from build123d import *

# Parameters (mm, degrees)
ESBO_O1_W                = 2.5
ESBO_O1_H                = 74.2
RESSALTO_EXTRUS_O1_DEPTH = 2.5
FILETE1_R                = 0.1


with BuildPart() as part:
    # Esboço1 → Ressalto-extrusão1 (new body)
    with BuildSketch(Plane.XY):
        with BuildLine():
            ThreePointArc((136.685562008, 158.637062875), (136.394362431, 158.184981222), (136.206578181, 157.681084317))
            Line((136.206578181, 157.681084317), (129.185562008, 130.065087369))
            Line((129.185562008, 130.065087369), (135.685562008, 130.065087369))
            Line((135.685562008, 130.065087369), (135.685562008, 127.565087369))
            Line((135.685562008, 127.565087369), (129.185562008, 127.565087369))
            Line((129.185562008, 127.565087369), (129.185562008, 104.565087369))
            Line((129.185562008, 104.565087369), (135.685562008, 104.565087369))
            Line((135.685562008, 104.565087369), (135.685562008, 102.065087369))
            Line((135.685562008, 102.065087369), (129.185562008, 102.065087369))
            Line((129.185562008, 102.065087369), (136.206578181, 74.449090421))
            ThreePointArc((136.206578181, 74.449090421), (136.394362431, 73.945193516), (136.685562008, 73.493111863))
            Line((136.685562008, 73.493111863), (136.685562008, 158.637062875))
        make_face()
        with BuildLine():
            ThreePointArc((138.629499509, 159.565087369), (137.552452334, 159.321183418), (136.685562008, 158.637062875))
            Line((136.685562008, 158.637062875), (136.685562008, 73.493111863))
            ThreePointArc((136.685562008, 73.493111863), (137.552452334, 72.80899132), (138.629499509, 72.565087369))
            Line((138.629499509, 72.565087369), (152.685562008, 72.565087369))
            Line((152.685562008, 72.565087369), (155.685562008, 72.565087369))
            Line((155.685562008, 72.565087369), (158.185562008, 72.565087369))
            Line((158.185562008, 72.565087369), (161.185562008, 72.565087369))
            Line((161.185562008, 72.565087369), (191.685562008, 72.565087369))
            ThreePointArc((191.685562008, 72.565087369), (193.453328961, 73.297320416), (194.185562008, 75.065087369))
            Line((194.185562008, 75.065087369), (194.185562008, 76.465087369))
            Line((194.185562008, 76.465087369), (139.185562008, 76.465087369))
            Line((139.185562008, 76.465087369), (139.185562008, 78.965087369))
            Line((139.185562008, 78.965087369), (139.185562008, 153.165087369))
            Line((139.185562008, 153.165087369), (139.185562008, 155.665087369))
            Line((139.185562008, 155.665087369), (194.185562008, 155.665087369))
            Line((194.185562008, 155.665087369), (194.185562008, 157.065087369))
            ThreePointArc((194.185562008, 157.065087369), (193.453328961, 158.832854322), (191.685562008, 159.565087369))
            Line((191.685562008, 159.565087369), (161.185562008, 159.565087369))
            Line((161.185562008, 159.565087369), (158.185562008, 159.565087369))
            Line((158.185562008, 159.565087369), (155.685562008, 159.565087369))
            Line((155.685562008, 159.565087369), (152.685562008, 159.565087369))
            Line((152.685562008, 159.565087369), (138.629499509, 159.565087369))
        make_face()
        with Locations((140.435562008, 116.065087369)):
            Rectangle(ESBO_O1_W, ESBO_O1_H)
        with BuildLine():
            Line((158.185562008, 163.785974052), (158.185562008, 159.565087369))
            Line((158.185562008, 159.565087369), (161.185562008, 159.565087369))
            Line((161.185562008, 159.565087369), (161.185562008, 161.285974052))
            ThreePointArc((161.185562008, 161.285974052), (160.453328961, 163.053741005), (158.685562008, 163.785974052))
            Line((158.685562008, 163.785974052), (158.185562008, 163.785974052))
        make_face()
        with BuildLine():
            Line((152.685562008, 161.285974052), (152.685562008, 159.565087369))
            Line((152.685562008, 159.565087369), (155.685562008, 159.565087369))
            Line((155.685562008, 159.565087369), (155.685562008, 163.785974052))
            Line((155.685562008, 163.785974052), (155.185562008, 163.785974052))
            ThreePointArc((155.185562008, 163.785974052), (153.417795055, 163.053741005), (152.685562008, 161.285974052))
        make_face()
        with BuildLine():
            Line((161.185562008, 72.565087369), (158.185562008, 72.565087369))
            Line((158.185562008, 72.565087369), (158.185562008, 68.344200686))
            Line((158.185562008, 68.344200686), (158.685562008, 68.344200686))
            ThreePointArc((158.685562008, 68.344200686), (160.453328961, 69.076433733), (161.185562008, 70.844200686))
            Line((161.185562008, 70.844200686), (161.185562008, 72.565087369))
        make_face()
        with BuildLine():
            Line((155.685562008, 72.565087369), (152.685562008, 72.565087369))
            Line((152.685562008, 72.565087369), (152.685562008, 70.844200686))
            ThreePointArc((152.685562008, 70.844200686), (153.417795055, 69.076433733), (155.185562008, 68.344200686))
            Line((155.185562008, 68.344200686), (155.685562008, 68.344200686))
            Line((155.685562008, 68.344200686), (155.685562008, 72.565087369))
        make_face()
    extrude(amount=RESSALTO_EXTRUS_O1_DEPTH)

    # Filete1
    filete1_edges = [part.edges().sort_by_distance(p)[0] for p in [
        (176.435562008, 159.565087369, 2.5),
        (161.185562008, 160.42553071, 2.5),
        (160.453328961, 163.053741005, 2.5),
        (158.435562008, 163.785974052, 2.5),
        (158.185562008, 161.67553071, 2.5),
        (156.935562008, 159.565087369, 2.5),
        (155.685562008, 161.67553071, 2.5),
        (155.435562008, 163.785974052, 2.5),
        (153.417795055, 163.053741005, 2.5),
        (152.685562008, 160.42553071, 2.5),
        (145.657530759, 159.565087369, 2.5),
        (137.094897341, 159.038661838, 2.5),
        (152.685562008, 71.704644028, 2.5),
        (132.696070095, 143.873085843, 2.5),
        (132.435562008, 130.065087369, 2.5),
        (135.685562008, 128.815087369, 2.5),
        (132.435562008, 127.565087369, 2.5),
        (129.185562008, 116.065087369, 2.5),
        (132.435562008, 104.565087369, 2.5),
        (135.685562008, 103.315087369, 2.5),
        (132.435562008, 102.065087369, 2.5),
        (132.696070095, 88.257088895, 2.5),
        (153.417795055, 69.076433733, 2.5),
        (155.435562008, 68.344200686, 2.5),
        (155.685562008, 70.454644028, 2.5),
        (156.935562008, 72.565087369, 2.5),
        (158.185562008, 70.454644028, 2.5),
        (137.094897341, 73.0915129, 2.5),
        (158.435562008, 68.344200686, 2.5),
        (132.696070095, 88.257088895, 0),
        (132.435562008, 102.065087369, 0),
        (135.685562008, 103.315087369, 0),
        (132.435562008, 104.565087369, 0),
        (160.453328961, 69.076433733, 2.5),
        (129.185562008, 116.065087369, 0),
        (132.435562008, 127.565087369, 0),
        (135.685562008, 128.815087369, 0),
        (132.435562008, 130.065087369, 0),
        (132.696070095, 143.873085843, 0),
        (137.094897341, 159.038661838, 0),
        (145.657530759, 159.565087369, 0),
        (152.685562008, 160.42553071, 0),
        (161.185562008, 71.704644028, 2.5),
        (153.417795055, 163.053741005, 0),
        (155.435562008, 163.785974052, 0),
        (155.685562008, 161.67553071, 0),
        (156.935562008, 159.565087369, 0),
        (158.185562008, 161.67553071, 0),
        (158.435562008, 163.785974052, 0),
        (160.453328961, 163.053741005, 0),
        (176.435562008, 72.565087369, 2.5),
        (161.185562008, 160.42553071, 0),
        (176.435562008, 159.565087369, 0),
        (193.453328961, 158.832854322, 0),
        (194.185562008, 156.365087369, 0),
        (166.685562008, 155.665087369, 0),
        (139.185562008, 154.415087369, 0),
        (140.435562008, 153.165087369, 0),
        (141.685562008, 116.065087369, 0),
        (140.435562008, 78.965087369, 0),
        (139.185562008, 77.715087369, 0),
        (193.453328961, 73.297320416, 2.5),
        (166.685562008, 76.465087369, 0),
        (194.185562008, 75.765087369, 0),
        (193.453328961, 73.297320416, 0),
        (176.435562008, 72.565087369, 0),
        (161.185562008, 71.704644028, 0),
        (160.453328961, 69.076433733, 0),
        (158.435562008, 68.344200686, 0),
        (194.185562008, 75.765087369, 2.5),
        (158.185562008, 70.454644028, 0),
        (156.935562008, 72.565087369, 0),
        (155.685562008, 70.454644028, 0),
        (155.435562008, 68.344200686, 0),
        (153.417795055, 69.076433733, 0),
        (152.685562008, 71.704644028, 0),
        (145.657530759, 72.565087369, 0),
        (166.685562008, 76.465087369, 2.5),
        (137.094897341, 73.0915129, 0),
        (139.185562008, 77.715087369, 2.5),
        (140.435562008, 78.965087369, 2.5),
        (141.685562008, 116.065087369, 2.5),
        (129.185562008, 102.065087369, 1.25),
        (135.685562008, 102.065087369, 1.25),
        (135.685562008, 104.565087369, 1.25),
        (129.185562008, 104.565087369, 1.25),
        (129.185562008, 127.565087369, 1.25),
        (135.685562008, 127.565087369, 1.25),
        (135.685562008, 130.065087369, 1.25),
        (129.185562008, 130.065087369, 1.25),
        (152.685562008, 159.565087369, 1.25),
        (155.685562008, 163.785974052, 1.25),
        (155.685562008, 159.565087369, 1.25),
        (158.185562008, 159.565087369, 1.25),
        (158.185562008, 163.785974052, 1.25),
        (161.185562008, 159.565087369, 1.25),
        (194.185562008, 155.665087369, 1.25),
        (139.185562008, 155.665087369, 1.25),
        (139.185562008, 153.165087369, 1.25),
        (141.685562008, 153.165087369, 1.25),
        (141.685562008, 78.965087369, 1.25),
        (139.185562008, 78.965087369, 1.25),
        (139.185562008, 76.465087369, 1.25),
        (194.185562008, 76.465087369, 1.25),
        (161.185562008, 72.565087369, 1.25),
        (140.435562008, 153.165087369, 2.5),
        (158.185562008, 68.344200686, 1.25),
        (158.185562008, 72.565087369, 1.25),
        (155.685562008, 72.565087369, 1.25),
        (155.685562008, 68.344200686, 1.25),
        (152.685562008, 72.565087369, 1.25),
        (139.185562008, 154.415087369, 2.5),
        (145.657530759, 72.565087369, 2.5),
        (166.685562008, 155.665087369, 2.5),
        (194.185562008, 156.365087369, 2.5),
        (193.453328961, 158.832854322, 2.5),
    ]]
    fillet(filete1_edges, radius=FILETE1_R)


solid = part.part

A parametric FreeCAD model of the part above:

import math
import FreeCAD as App
import Part
import Sketcher
from FreeCAD import Vector
Q = App.Units.Quantity

doc = App.newDocument("Part")
body = doc.addObject("PartDesign::Body", "Body")

sketch1 = doc.addObject("Sketcher::SketchObject", "Sketch")
body.addObject(sketch1)
sketch1.AttachmentSupport = (doc.XY_Plane, [""])
sketch1.MapMode = "FlatFace"
sketch1.addGeometry([
    Part.ArcOfCircle(Part.Circle(Vector(138.6, 157.1, 0), Vector(0, 0, 1), 2.5), math.radians(141), math.radians(166)),
    Part.LineSegment(Vector(136.2, 157.7, 0), Vector(129.2, 130.1, 0)),
    Part.LineSegment(Vector(129.2, 130.1, 0), Vector(135.7, 130.1, 0)),
    Part.LineSegment(Vector(135.7, 130.1, 0), Vector(135.7, 127.6, 0)),
    Part.LineSegment(Vector(135.7, 127.6, 0), Vector(129.2, 127.6, 0)),
    Part.LineSegment(Vector(129.2, 127.6, 0), Vector(129.2, 104.6, 0)),
    Part.LineSegment(Vector(129.2, 104.6, 0), Vector(135.7, 104.6, 0)),
    Part.LineSegment(Vector(135.7, 104.6, 0), Vector(135.7, 102.1, 0)),
    Part.LineSegment(Vector(135.7, 102.1, 0), Vector(129.2, 102.1, 0)),
    Part.LineSegment(Vector(129.2, 102.1, 0), Vector(136.2, 74.4, 0)),
    Part.ArcOfCircle(Part.Circle(Vector(138.6, 75.1, 0), Vector(0, 0, 1), 2.5), math.radians(-166), math.radians(-141)),
    Part.ArcOfCircle(Part.Circle(Vector(138.6, 75.1, 0), Vector(0, 0, 1), 2.5), math.radians(-141), math.radians(-90)),
    Part.LineSegment(Vector(138.6, 72.6, 0), Vector(152.7, 72.6, 0)),
    Part.LineSegment(Vector(152.7, 72.6, 0), Vector(152.7, 70.8, 0)),
    Part.ArcOfCircle(Part.Circle(Vector(155.2, 70.8, 0), Vector(0, 0, 1), 2.5), math.radians(180), math.radians(270)),
    Part.LineSegment(Vector(155.2, 68.3, 0), Vector(155.7, 68.3, 0)),
    Part.LineSegment(Vector(155.7, 68.3, 0), Vector(155.7, 72.6, 0)),
    Part.LineSegment(Vector(155.7, 72.6, 0), Vector(158.2, 72.6, 0)),
    Part.LineSegment(Vector(158.2, 72.6, 0), Vector(158.2, 68.3, 0)),
    Part.LineSegment(Vector(158.2, 68.3, 0), Vector(158.7, 68.3, 0)),
    Part.ArcOfCircle(Part.Circle(Vector(158.7, 70.8, 0), Vector(0, 0, 1), 2.5), math.radians(-90), math.radians(0)),
    Part.LineSegment(Vector(161.2, 70.8, 0), Vector(161.2, 72.6, 0)),
    Part.LineSegment(Vector(161.2, 72.6, 0), Vector(191.7, 72.6, 0)),
    Part.ArcOfCircle(Part.Circle(Vector(191.7, 75.1, 0), Vector(0, 0, 1), 2.5), math.radians(-90), math.radians(0)),
    Part.LineSegment(Vector(194.2, 75.1, 0), Vector(194.2, 76.5, 0)),
    Part.LineSegment(Vector(194.2, 76.5, 0), Vector(139.2, 76.5, 0)),
    Part.LineSegment(Vector(139.2, 76.5, 0), Vector(139.2, 79, 0)),
    Part.LineSegment(Vector(139.2, 79, 0), Vector(141.7, 79, 0)),
    Part.LineSegment(Vector(141.7, 79, 0), Vector(141.7, 153.2, 0)),
    Part.LineSegment(Vector(141.7, 153.2, 0), Vector(139.2, 153.2, 0)),
    Part.LineSegment(Vector(139.2, 153.2, 0), Vector(139.2, 155.7, 0)),
    Part.LineSegment(Vector(139.2, 155.7, 0), Vector(194.2, 155.7, 0)),
    Part.LineSegment(Vector(194.2, 155.7, 0), Vector(194.2, 157.1, 0)),
    Part.ArcOfCircle(Part.Circle(Vector(191.7, 157.1, 0), Vector(0, 0, 1), 2.5), math.radians(0), math.radians(90)),
    Part.LineSegment(Vector(191.7, 159.6, 0), Vector(161.2, 159.6, 0)),
    Part.LineSegment(Vector(161.2, 159.6, 0), Vector(161.2, 161.3, 0)),
    Part.ArcOfCircle(Part.Circle(Vector(158.7, 161.3, 0), Vector(0, 0, 1), 2.5), math.radians(0), math.radians(90)),
    Part.LineSegment(Vector(158.7, 163.8, 0), Vector(158.2, 163.8, 0)),
    Part.LineSegment(Vector(158.2, 163.8, 0), Vector(158.2, 159.6, 0)),
    Part.LineSegment(Vector(158.2, 159.6, 0), Vector(155.7, 159.6, 0)),
    Part.LineSegment(Vector(155.7, 159.6, 0), Vector(155.7, 163.8, 0)),
    Part.LineSegment(Vector(155.7, 163.8, 0), Vector(155.2, 163.8, 0)),
    Part.ArcOfCircle(Part.Circle(Vector(155.2, 161.3, 0), Vector(0, 0, 1), 2.5), math.radians(90), math.radians(180)),
    Part.LineSegment(Vector(152.7, 161.3, 0), Vector(152.7, 159.6, 0)),
    Part.LineSegment(Vector(152.7, 159.6, 0), Vector(138.6, 159.6, 0)),
    Part.ArcOfCircle(Part.Circle(Vector(138.6, 157.1, 0), Vector(0, 0, 1), 2.5), math.radians(90), math.radians(141)),
], False)
sketch1.addConstraint([
    Sketcher.Constraint("Tangent", 0, 2, 1, 1),
    Sketcher.Constraint("Coincident", 1, 2, 2, 1),
    Sketcher.Constraint("Coincident", 2, 2, 3, 1),
    Sketcher.Constraint("Coincident", 3, 2, 4, 1),
    Sketcher.Constraint("Coincident", 4, 2, 5, 1),
    Sketcher.Constraint("Coincident", 5, 2, 6, 1),
    Sketcher.Constraint("Coincident", 6, 2, 7, 1),
    Sketcher.Constraint("Coincident", 7, 2, 8, 1),
    Sketcher.Constraint("Coincident", 8, 2, 9, 1),
    Sketcher.Constraint("Tangent", 9, 2, 10, 1),
    Sketcher.Constraint("Tangent", 10, 2, 11, 1),
    Sketcher.Constraint("Tangent", 11, 2, 12, 1),
    Sketcher.Constraint("Coincident", 12, 2, 13, 1),
    Sketcher.Constraint("Tangent", 13, 2, 14, 1),
    Sketcher.Constraint("Tangent", 14, 2, 15, 1),
    Sketcher.Constraint("Coincident", 15, 2, 16, 1),
    Sketcher.Constraint("Coincident", 16, 2, 17, 1),
    Sketcher.Constraint("Coincident", 17, 2, 18, 1),
    Sketcher.Constraint("Coincident", 18, 2, 19, 1),
    Sketcher.Constraint("Tangent", 19, 2, 20, 1),
    Sketcher.Constraint("Tangent", 20, 2, 21, 1),
    Sketcher.Constraint("Coincident", 21, 2, 22, 1),
    Sketcher.Constraint("Tangent", 22, 2, 23, 1),
    Sketcher.Constraint("Tangent", 23, 2, 24, 1),
    Sketcher.Constraint("Coincident", 24, 2, 25, 1),
    Sketcher.Constraint("Coincident", 25, 2, 26, 1),
    Sketcher.Constraint("Coincident", 26, 2, 27, 1),
    Sketcher.Constraint("Coincident", 27, 2, 28, 1),
    Sketcher.Constraint("Coincident", 28, 2, 29, 1),
    Sketcher.Constraint("Coincident", 29, 2, 30, 1),
    Sketcher.Constraint("Coincident", 30, 2, 31, 1),
    Sketcher.Constraint("Coincident", 31, 2, 32, 1),
    Sketcher.Constraint("Tangent", 32, 2, 33, 1),
    Sketcher.Constraint("Tangent", 33, 2, 34, 1),
    Sketcher.Constraint("Coincident", 34, 2, 35, 1),
    Sketcher.Constraint("Tangent", 35, 2, 36, 1),
    Sketcher.Constraint("Tangent", 36, 2, 37, 1),
    Sketcher.Constraint("Coincident", 37, 2, 38, 1),
    Sketcher.Constraint("Coincident", 38, 2, 39, 1),
    Sketcher.Constraint("Coincident", 39, 2, 40, 1),
    Sketcher.Constraint("Coincident", 40, 2, 41, 1),
    Sketcher.Constraint("Tangent", 41, 2, 42, 1),
    Sketcher.Constraint("Tangent", 42, 2, 43, 1),
    Sketcher.Constraint("Coincident", 43, 2, 44, 1),
    Sketcher.Constraint("Tangent", 44, 2, 45, 1),
    Sketcher.Constraint("Tangent", 45, 2, 0, 1),
    Sketcher.Constraint("Horizontal", 2),
    Sketcher.Constraint("Vertical", 3),
    Sketcher.Constraint("Horizontal", 4),
    Sketcher.Constraint("Vertical", 5),
    Sketcher.Constraint("Horizontal", 6),
    Sketcher.Constraint("Vertical", 7),
    Sketcher.Constraint("Horizontal", 8),
    Sketcher.Constraint("Horizontal", 12),
    Sketcher.Constraint("Vertical", 13),
    Sketcher.Constraint("Horizontal", 15),
    Sketcher.Constraint("Vertical", 16),
    Sketcher.Constraint("Horizontal", 17),
    Sketcher.Constraint("Vertical", 18),
    Sketcher.Constraint("Horizontal", 19),
    Sketcher.Constraint("Vertical", 21),
    Sketcher.Constraint("Horizontal", 22),
    Sketcher.Constraint("Vertical", 24),
    Sketcher.Constraint("Horizontal", 25),
    Sketcher.Constraint("Vertical", 26),
    Sketcher.Constraint("Horizontal", 27),
    Sketcher.Constraint("Vertical", 28),
    Sketcher.Constraint("Horizontal", 29),
    Sketcher.Constraint("Vertical", 30),
    Sketcher.Constraint("Horizontal", 31),
    Sketcher.Constraint("Vertical", 32),
    Sketcher.Constraint("Horizontal", 34),
    Sketcher.Constraint("Vertical", 35),
    Sketcher.Constraint("Horizontal", 37),
    Sketcher.Constraint("Vertical", 38),
    Sketcher.Constraint("Horizontal", 39),
    Sketcher.Constraint("Vertical", 40),
    Sketcher.Constraint("Horizontal", 41),
    Sketcher.Constraint("Vertical", 43),
    Sketcher.Constraint("Horizontal", 44),
    Sketcher.Constraint("Equal", 0, 10),
    Sketcher.Constraint("Equal", 10, 11),
    Sketcher.Constraint("Equal", 11, 14),
    Sketcher.Constraint("Equal", 14, 20),
    Sketcher.Constraint("Equal", 20, 23),
    Sketcher.Constraint("Equal", 23, 33),
    Sketcher.Constraint("Equal", 33, 36),
    Sketcher.Constraint("Equal", 36, 42),
    Sketcher.Constraint("Equal", 42, 45),
    Sketcher.Constraint("Horizontal", 14, 3, 20, 3),
    Sketcher.Constraint("Horizontal", 11, 3, 23, 3),
    Sketcher.Constraint("Horizontal", 0, 3, 33, 3),
    Sketcher.Constraint("Horizontal", 36, 3, 42, 3),
    Sketcher.Constraint("Horizontal", 12, 2, 16, 2),
    Sketcher.Constraint("Horizontal", 34, 2, 38, 2),
    Sketcher.Constraint("Vertical", 0, 3, 10, 3),
    Sketcher.Constraint("Vertical", 23, 3, 33, 3),
    Sketcher.Constraint("Vertical", 20, 3, 36, 3),
    Sketcher.Constraint("Vertical", 14, 3, 42, 3),
    Sketcher.Constraint("Vertical", 1, 2, 4, 2),
    Sketcher.Constraint("Vertical", 3, 2, 6, 2),
    Sketcher.Constraint("Vertical", 5, 2, 8, 2),
    Sketcher.Constraint("Vertical", 0, 2, 9, 2),
    Sketcher.Constraint("Vertical", 26, 2, 29, 2),
    Sketcher.Constraint("Vertical", 18, 2, 37, 2),
    Sketcher.Constraint("Vertical", 16, 2, 39, 2),
    Sketcher.Constraint("Vertical", 10, 2, 45, 2),
    Sketcher.Constraint("Equal", 15, 19),
    Sketcher.Constraint("Equal", 17, 27),
    Sketcher.Constraint("Equal", 39, 3),
    Sketcher.Constraint("Equal", 3, 7),
    Sketcher.Constraint("Equal", 7, 26),
    Sketcher.Constraint("Equal", 26, 30),
    Sketcher.Constraint("Equal", 24, 32),
    Sketcher.Constraint("Equal", 21, 35),
    Sketcher.Constraint("Radius", 0, Q("2.5 mm")),
    Sketcher.Constraint("DistanceX", 25, 2, 25, 1, Q("55 mm")),
    Sketcher.Constraint("DistanceY", 5, 2, 5, 1, Q("23 mm")),
    Sketcher.Constraint("DistanceX", 2, 1, 2, 2, Q("6.5 mm")),
    Sketcher.Constraint("DistanceX", 15, 1, 15, 2, Q("0.5 mm")),
    Sketcher.Constraint("DistanceX", 17, 1, 17, 2, Q("2.5 mm")),
    Sketcher.Constraint("DistanceX", 22, 1, 22, 2, Q("30.5 mm")),
    Sketcher.Constraint("DistanceY", 24, 1, 24, 2, Q("1.4 mm")),
    Sketcher.Constraint("DistanceY", 28, 1, 28, 2, Q("74.2 mm")),
    Sketcher.Constraint("DistanceX", 1, 2, 42, 3, Q("26 mm")),
    Sketcher.Constraint("DistanceX", 10, 2, 20, 3, Q("22 mm")),
    Sketcher.Constraint("DistanceX", -1, 1, 0, 3, Q("138.6295 mm")),
    Sketcher.Constraint("DistanceY", -1, 1, 14, 3, Q("70.844201 mm")),
    Sketcher.Constraint("DistanceX", 12, 1, 12, 2, Q("14.056062 mm")),
    Sketcher.Constraint("DistanceY", 13, 2, 13, 1, Q("1.720887 mm")),
])
pad1 = doc.addObject("PartDesign::Pad", "Pad")
body.addObject(pad1)
pad1.Profile = sketch1
pad1.Length = 2.5
doc.recompute()

fillet = doc.addObject("PartDesign::Fillet", "Fillet")
body.addObject(fillet)
fillet.Base = (pad1, ["Edge1"])
fillet.UseAllEdges = True
fillet.Radius = 0.1

doc.recompute()
